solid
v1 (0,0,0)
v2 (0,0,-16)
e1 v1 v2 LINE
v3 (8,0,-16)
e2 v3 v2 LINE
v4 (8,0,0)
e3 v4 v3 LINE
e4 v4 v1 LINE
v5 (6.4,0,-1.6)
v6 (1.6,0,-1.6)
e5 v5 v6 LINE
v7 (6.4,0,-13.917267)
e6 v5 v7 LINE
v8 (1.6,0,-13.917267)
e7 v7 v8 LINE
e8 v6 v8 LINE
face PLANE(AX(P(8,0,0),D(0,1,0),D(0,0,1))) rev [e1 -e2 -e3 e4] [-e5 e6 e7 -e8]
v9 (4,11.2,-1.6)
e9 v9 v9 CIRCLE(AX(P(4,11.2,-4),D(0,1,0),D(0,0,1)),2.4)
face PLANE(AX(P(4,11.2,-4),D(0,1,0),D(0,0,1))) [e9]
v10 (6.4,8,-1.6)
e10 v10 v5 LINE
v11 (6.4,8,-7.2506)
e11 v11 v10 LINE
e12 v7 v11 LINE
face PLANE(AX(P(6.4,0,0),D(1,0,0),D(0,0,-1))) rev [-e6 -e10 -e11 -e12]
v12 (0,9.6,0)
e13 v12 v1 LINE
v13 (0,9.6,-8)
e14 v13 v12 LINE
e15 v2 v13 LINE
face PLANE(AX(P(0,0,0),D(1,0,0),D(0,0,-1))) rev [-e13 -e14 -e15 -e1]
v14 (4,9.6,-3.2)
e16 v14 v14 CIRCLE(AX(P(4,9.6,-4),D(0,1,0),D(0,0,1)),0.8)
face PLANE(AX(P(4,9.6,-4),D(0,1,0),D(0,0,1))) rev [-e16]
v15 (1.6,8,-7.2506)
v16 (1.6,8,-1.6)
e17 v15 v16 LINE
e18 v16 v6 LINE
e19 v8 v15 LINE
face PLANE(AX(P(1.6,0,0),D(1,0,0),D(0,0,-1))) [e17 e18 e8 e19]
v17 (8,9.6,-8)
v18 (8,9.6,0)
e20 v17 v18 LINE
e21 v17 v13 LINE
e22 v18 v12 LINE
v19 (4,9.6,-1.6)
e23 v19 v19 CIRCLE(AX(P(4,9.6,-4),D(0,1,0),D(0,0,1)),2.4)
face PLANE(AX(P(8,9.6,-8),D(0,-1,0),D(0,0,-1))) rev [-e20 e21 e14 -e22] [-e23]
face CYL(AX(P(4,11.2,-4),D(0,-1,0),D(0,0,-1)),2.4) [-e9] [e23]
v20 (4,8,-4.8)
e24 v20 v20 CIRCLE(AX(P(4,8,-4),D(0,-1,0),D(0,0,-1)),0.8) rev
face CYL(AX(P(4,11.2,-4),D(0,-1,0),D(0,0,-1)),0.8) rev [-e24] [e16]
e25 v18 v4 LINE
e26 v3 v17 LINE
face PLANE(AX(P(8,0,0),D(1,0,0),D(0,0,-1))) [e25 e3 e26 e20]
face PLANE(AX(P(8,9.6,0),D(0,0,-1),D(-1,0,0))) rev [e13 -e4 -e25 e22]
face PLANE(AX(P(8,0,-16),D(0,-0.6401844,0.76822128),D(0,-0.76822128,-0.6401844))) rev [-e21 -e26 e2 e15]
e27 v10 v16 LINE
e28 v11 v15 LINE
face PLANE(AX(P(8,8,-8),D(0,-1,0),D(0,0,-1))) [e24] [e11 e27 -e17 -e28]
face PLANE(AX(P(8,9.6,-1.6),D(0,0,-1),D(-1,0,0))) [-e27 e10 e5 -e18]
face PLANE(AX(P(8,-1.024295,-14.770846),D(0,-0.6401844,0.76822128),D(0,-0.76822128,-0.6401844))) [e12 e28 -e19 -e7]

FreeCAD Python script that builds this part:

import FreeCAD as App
import Part
import Sketcher
from FreeCAD import Vector


def faces_at(feature, points):
    """Names of the faces that lie closest to the given points."""
    faces = feature.Shape.Faces
    near = lambda p: min(range(len(faces)), key=lambda i: faces[i].distToShape(Part.Vertex(*p))[0])
    return sorted({f"Face{near(p) + 1}" for p in points})


def add_polygon(sketch, points):
    """Adds a closed chain of lines whose ends are joined by coincident constraints."""
    first, n = sketch.GeometryCount, len(points)
    for a, b in zip(points, points[1:] + points[:1]):
        sketch.addGeometry(Part.LineSegment(App.Vector(*a, 0), App.Vector(*b, 0)), False)
    for i in range(n):
        sketch.addConstraint(Sketcher.Constraint("Coincident", first + i, 2, first + (i + 1) % n, 1))

doc = App.newDocument("Part")
body = doc.addObject("PartDesign::Body", "Body")

# Sketch on YZ plane
sketch1 = body.newObject("Sketcher::SketchObject", "Sketch")
sketch1.AttachmentSupport = (doc.getObject("YZ_Plane"), [""])
sketch1.MapMode = "FlatFace"
add_polygon(sketch1, [(0, 0), (0, -16), (10, -8), (10, 0)])  # lines 0-3
sketch1.addConstraint(Sketcher.Constraint("Vertical", 0))
sketch1.addConstraint(Sketcher.Constraint("Vertical", 2))
sketch1.addConstraint(Sketcher.Constraint("Horizontal", 3))
sketch1.addConstraint(Sketcher.Constraint("Coincident", 3, 2, -1, 1))
sketch1.addConstraint(Sketcher.Constraint("DistanceY", 0, 2, 0, 1, 16.0))
sketch1.addConstraint(Sketcher.Constraint("DistanceY", 2, 1, 2, 2, 8.0))
sketch1.addConstraint(Sketcher.Constraint("DistanceX", 3, 2, 3, 1, 9.6))
pad1 = body.newObject("PartDesign::Pad", "Pad")
pad1.Profile = sketch1
pad1.Length = 8

# Sketch on XZ plane
sketch2 = body.newObject("Sketcher::SketchObject", "Sketch001")
sketch2.AttachmentSupport = (doc.getObject("XZ_Plane"), [""])
sketch2.MapMode = "FlatFace"
sketch2.AttachmentOffset = App.Placement(Vector(0, 0, -9.6), App.Rotation())
sketch2.addGeometry(Part.Circle(Vector(4, -4, 0), Vector(0, 0, 1), 2.4), False)
sketch2.addConstraint(Sketcher.Constraint("Diameter", 0, 4.8))
sketch2.addConstraint(Sketcher.Constraint("DistanceX", -1, 1, 0, 3, 4.0))
sketch2.addConstraint(Sketcher.Constraint("DistanceY", 0, 3, -1, 1, 4.0))
pad2 = body.newObject("PartDesign::Pad", "Pad001")
pad2.Profile = sketch2
pad2.Length = 1.6
pad2.Reversed = True
doc.recompute()

thickness = body.newObject("PartDesign::Thickness", "Thickness")
thickness.Base = (pad2, faces_at(pad2, [(4, 0, -8)]))
thickness.Value = 1.6
thickness.Reversed = True
thickness.Join = "Intersection"

doc.recompute()
